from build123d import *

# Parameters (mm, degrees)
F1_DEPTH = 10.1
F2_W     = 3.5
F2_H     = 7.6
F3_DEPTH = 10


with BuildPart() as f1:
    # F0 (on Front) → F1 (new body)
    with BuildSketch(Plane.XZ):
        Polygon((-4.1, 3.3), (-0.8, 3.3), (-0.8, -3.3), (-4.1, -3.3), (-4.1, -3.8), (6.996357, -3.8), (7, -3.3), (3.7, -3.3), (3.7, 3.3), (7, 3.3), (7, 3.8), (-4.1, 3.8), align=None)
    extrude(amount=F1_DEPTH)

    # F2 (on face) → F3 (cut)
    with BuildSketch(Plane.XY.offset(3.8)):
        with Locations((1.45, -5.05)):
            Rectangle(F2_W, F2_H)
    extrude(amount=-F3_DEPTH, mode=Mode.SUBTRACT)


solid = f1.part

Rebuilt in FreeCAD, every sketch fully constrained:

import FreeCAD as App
import Part
import Sketcher

V = App.Vector

doc = App.newDocument("Part")
body = doc.addObject("PartDesign::Body", "Body")

sketch1 = doc.addObject("Sketcher::SketchObject", "Sketch")
body.addObject(sketch1)
sketch1.AttachmentSupport = (doc.XZ_Plane, [""])
sketch1.MapMode = "FlatFace"
sketch1.addGeometry([
    Part.LineSegment(V(-4.1, 3.3, 0), V(-0.8, 3.3, 0)),
    Part.LineSegment(V(-0.8, 3.3, 0), V(-0.8, -3.3, 0)),
    Part.LineSegment(V(-0.8, -3.3, 0), V(-4.1, -3.3, 0)),
    Part.LineSegment(V(-4.1, -3.3, 0), V(-4.1, -3.8, 0)),
    Part.LineSegment(V(-4.1, -3.8, 0), V(7, -3.8, 0)),
    Part.LineSegment(V(7, -3.8, 0), V(7, -3.3, 0)),
    Part.LineSegment(V(7, -3.3, 0), V(3.7, -3.3, 0)),
    Part.LineSegment(V(3.7, -3.3, 0), V(3.7, 3.3, 0)),
    Part.LineSegment(V(3.7, 3.3, 0), V(7, 3.3, 0)),
    Part.LineSegment(V(7, 3.3, 0), V(7, 3.8, 0)),
    Part.LineSegment(V(7, 3.8, 0), V(-4.1, 3.8, 0)),
    Part.LineSegment(V(-4.1, 3.8, 0), V(-4.1, 3.3, 0)),
], False)
sketch1.addConstraint([
    Sketcher.Constraint("Coincident", 0, 2, 1, 1),
    Sketcher.Constraint("Coincident", 1, 2, 2, 1),
    Sketcher.Constraint("Coincident", 2, 2, 3, 1),
    Sketcher.Constraint("Coincident", 3, 2, 4, 1),
    Sketcher.Constraint("Coincident", 4, 2, 5, 1),
    Sketcher.Constraint("Coincident", 5, 2, 6, 1),
    Sketcher.Constraint("Coincident", 6, 2, 7, 1),
    Sketcher.Constraint("Coincident", 7, 2, 8, 1),
    Sketcher.Constraint("Coincident", 8, 2, 9, 1),
    Sketcher.Constraint("Coincident", 9, 2, 10, 1),
    Sketcher.Constraint("Coincident", 10, 2, 11, 1),
    Sketcher.Constraint("Coincident", 11, 2, 0, 1),
    Sketcher.Constraint("Horizontal", 0),
    Sketcher.Constraint("Vertical", 1),
    Sketcher.Constraint("Horizontal", 2),
    Sketcher.Constraint("Vertical", 3),
    Sketcher.Constraint("Horizontal", 4),
    Sketcher.Constraint("Horizontal", 6),
    Sketcher.Constraint("Vertical", 7),
    Sketcher.Constraint("Horizontal", 8),
    Sketcher.Constraint("Vertical", 9),
    Sketcher.Constraint("Horizontal", 10),
    Sketcher.Constraint("Vertical", 11),
    Sketcher.Constraint("Symmetric", 5, 2, 8, 2, -1),
    Sketcher.Constraint("Symmetric", 3, 2, 10, 2, -1),
    Sketcher.Constraint("Horizontal", 2, 2, 5, 2),
    Sketcher.Constraint("Horizontal", 0, 2, 7, 2),
    Sketcher.Constraint("Equal", 2, 6),
    Sketcher.Constraint("DistanceX", 0, 1, 0, 2, 3.3),
    Sketcher.Constraint("DistanceX", 10, 2, 10, 1, 11.1),
    Sketcher.Constraint("DistanceY", 1, 2, 1, 1, 6.6),
    Sketcher.Constraint("DistanceY", 3, 2, 3, 1, 0.5),
    Sketcher.Constraint("DistanceX", -1, 1, 5, 2, 7.0),
    Sketcher.Constraint("DistanceX", 4, 1, 4, 2, 11.096357),
])
pad1 = doc.addObject("PartDesign::Pad", "Pad")
body.addObject(pad1)
pad1.Profile = sketch1
pad1.Length = 10.1

sketch2 = doc.addObject("Sketcher::SketchObject", "Sketch001")
body.addObject(sketch2)
sketch2.AttachmentSupport = (doc.XY_Plane, [""])
sketch2.MapMode = "FlatFace"
sketch2.AttachmentOffset = App.Placement(V(0, 0, 3.8), App.Rotation())
sketch2.addGeometry([
    Part.LineSegment(V(-0.3, -1.2, 0), V(-0.3, -8.8, 0)),
    Part.LineSegment(V(-0.3, -8.8, 0), V(3.2, -8.8, 0)),
    Part.LineSegment(V(3.2, -8.8, 0), V(3.2, -1.2, 0)),
    Part.LineSegment(V(3.2, -1.2, 0), V(-0.3, -1.2, 0)),
], False)
sketch2.addConstraint([
    Sketcher.Constraint("Coincident", 0, 2, 1, 1),
    Sketcher.Constraint("Coincident", 1, 2, 2, 1),
    Sketcher.Constraint("Coincident", 2, 2, 3, 1),
    Sketcher.Constraint("Coincident", 3, 2, 0, 1),
    Sketcher.Constraint("Vertical", 0),
    Sketcher.Constraint("Horizontal", 1),
    Sketcher.Constraint("Vertical", 2),
    Sketcher.Constraint("Horizontal", 3),
    Sketcher.Constraint("DistanceX", 1, 1, 1, 2, 3.5),
    Sketcher.Constraint("DistanceY", 0, 2, 0, 1, 7.6),
    Sketcher.Constraint("DistanceX", 0, 2, -1, 1, 0.3),
    Sketcher.Constraint("DistanceY", 0, 2, -1, 1, 8.85),
])
pocket1 = doc.addObject("PartDesign::Pocket", "Pocket")
body.addObject(pocket1)
pocket1.Profile = sketch2
pocket1.Length = 10

doc.recompute()
